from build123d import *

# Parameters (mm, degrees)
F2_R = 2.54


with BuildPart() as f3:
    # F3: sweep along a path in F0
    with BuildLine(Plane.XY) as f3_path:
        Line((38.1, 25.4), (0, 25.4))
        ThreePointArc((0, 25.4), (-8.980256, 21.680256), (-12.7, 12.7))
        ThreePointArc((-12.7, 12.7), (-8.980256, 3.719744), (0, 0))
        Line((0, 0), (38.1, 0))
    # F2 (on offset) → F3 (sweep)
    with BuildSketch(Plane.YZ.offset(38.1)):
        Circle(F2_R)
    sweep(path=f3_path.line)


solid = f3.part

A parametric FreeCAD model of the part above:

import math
import FreeCAD as App
import Part
import Sketcher
Q = App.Units.Quantity

doc = App.newDocument("Part")
body = doc.addObject("PartDesign::Body", "Body")

# Sketch on YZ plane
sketch1 = body.newObject("Sketcher::SketchObject", "Sketch")
sketch1.AttachmentSupport = (doc.getObject("YZ_Plane"), [""])
sketch1.MapMode = "FlatFace"
sketch1.AttachmentOffset = App.Placement(App.Vector(0, 0, 1.5 * 25.4), App.Rotation())
sketch1.addGeometry(Part.Circle(App.Vector(0, 0, 0), App.Vector(0, 0, 1), 2.5), False)
sketch1.addConstraint(Sketcher.Constraint("Coincident", 0, 3, -1, 1))
sketch1.addConstraint(Sketcher.Constraint("Diameter", 0, Q("0.2 in")))

# Sketch on XY plane
sketch2 = body.newObject("Sketcher::SketchObject", "Sketch001")
sketch2.AttachmentSupport = (doc.getObject("XY_Plane"), [""])
sketch2.MapMode = "FlatFace"
sketch2.addGeometry(Part.LineSegment(App.Vector(38, 25, 0), App.Vector(0, 25, 0)), False)
sketch2.addGeometry(Part.ArcOfCircle(Part.Circle(App.Vector(0, 13, 0), App.Vector(0, 0, 1), 13), math.radians(90), math.radians(180)), False)
sketch2.addGeometry(Part.ArcOfCircle(Part.Circle(App.Vector(0, 13, 0), App.Vector(0, 0, 1), 13), math.radians(-180), math.radians(-90)), False)
sketch2.addGeometry(Part.LineSegment(App.Vector(0, 0, 0), App.Vector(38, 0, 0)), False)
sketch2.addConstraint(Sketcher.Constraint("Tangent", 0, 2, 1, 1))
sketch2.addConstraint(Sketcher.Constraint("Tangent", 1, 2, 2, 1))
sketch2.addConstraint(Sketcher.Constraint("Tangent", 2, 2, 3, 1))
sketch2.addConstraint(Sketcher.Constraint("Horizontal", 0))
sketch2.addConstraint(Sketcher.Constraint("Horizontal", 3))
sketch2.addConstraint(Sketcher.Constraint("Coincident", 2, 2, -1, 1))
sketch2.addConstraint(Sketcher.Constraint("Equal", 1, 2))
sketch2.addConstraint(Sketcher.Constraint("Horizontal", 2, 3, 1, 2))
sketch2.addConstraint(Sketcher.Constraint("Vertical", 0, 1, 3, 2))
sketch2.addConstraint(Sketcher.Constraint("Radius", 1, Q("0.5 in")))
sketch2.addConstraint(Sketcher.Constraint("DistanceX", 0, 2, 0, 1, Q("1.5 in")))
doc.recompute()

additivepipe = body.newObject("PartDesign::AdditivePipe", "AdditivePipe")
additivepipe.Profile = sketch1
additivepipe.Spine = (sketch2, ["Edge1", "Edge2", "Edge3", "Edge4"])

doc.recompute()
